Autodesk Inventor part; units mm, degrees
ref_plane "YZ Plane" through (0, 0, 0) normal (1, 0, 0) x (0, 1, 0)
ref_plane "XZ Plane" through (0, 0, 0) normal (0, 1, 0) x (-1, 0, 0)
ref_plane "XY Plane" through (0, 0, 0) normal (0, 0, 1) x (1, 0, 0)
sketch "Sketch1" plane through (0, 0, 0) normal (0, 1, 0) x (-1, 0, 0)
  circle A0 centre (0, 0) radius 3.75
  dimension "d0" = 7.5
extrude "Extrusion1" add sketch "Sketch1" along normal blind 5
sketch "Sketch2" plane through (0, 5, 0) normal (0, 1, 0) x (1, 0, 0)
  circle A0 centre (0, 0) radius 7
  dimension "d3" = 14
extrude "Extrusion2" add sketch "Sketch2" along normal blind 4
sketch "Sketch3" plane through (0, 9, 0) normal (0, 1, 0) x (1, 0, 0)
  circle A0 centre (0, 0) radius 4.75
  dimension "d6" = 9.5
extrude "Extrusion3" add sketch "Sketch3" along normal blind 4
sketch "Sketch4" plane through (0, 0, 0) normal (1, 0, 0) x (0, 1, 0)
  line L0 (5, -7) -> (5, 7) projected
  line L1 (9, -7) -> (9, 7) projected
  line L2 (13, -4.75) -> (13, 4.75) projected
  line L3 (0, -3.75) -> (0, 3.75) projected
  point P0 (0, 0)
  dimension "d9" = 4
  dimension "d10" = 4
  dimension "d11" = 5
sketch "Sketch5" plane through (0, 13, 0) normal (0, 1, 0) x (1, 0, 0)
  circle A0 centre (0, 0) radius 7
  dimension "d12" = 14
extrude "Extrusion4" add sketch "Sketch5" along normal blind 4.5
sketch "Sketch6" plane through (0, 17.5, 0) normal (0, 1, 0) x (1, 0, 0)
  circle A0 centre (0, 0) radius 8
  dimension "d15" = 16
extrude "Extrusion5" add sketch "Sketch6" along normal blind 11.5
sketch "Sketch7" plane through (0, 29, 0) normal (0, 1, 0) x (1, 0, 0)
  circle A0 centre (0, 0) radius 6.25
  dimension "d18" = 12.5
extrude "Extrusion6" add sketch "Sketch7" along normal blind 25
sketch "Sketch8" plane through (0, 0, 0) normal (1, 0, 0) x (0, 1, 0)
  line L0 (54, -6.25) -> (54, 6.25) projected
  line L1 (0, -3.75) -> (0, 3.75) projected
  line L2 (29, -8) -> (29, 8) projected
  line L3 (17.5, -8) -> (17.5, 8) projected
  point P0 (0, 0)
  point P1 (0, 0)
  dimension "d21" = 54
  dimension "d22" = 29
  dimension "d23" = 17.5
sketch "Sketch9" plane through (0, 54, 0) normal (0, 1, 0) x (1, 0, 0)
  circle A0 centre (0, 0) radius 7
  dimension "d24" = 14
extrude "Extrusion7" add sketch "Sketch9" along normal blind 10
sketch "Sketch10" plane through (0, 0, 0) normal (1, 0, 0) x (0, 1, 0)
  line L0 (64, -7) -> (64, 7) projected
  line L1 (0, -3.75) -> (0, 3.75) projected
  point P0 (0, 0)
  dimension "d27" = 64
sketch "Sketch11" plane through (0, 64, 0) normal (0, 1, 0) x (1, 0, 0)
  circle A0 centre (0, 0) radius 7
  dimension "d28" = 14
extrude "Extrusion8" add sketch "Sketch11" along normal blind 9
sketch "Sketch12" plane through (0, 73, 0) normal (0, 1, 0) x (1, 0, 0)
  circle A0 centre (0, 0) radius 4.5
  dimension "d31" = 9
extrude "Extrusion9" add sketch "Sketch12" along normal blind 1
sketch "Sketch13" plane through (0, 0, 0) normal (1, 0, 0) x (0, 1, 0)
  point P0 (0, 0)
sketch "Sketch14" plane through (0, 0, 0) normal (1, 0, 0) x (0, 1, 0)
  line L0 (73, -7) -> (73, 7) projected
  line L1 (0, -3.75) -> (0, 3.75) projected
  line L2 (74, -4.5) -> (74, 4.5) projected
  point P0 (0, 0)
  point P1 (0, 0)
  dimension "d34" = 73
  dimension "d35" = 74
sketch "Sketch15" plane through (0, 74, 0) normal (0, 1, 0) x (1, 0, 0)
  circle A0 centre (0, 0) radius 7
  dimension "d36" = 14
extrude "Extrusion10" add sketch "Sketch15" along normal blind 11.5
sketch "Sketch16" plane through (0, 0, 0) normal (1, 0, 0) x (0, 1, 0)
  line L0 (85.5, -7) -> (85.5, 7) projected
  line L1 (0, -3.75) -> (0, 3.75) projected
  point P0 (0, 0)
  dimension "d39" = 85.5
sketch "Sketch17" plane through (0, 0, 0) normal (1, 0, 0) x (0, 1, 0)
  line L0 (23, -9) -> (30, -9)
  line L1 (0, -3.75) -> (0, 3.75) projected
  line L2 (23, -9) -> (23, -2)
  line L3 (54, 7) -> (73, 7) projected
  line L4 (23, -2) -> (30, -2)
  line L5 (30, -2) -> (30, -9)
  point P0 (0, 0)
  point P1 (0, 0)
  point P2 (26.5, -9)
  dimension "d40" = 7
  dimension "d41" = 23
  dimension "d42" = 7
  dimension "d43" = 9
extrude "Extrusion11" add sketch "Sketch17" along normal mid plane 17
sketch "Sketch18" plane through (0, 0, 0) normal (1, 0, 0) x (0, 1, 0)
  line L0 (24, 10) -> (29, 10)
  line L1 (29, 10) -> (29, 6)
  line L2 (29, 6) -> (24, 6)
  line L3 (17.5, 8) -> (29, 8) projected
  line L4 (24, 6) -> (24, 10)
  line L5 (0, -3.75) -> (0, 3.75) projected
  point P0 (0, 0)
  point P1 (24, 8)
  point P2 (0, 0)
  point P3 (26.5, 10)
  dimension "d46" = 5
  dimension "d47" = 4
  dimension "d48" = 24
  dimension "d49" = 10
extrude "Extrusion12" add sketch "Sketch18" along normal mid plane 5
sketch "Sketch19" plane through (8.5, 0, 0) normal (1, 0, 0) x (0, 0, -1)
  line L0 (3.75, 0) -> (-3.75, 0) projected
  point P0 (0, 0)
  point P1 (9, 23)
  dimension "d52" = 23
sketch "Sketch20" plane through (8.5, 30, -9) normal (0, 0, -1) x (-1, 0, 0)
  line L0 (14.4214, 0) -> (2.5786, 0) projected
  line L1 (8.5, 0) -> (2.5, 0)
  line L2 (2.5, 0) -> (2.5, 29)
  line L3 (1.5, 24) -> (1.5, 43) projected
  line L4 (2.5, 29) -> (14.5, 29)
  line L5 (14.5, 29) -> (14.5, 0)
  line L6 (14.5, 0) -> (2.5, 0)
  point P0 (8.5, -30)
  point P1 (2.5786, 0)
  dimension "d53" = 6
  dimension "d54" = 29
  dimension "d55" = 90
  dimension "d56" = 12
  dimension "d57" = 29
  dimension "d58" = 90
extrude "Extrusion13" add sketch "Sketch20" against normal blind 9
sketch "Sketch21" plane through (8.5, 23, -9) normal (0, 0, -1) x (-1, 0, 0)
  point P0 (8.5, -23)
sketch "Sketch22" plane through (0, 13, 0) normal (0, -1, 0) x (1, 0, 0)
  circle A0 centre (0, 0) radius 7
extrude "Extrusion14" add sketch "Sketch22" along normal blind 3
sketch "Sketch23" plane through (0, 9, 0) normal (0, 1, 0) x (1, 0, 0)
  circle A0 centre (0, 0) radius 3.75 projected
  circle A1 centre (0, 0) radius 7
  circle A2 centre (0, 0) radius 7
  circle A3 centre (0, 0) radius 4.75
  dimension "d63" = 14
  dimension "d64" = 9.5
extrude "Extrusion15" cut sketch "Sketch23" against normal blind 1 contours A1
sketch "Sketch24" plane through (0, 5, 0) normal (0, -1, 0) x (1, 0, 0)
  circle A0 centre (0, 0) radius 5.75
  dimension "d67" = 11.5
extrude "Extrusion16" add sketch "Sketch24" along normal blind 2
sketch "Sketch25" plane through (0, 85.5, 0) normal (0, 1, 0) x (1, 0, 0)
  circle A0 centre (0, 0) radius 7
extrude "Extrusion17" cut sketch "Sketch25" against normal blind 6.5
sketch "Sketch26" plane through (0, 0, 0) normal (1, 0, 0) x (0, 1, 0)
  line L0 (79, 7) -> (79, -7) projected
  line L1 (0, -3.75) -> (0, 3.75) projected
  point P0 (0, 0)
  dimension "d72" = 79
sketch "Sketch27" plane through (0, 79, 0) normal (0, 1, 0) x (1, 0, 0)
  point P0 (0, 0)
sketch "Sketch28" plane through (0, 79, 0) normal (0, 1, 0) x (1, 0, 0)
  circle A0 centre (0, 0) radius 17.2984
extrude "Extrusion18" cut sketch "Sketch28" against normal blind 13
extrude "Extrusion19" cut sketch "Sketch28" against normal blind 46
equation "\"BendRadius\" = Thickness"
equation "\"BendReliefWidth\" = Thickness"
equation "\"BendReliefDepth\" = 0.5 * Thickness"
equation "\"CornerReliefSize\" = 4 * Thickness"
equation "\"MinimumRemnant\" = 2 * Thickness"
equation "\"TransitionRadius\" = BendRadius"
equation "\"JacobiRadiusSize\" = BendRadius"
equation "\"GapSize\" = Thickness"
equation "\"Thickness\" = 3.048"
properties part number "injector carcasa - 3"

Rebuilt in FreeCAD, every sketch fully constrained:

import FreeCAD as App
import Part
import Sketcher

V = App.Vector

doc = App.newDocument("Part")
body = doc.addObject("PartDesign::Body", "Body")

# Sketch on XZ plane
sketch1 = body.newObject("Sketcher::SketchObject", "Sketch")
sketch1.AttachmentSupport = (doc.getObject("XZ_Plane"), [""])
sketch1.MapMode = "FlatFace"
sketch1.addGeometry(Part.Circle(V(0, 0, 0), V(0, 0, 1), 3.8), False)
sketch1.addConstraint([
    Sketcher.Constraint("Coincident", 0, 3, -1, 1),
    Sketcher.Constraint("Diameter", 0, 7.5),
])
pad1 = body.newObject("PartDesign::Pad", "Pad")
pad1.Profile = sketch1
pad1.Length = 5
pad1.Reversed = True

# Sketch on XZ plane
sketch2 = body.newObject("Sketcher::SketchObject", "Sketch001")
sketch2.AttachmentSupport = (doc.getObject("XZ_Plane"), [""])
sketch2.MapMode = "FlatFace"
sketch2.AttachmentOffset = App.Placement(V(0, 0, -5), App.Rotation())
sketch2.addGeometry(Part.Circle(V(0, 0, 0), V(0, 0, 1), 7), False)
sketch2.addConstraint([
    Sketcher.Constraint("Coincident", 0, 3, -1, 1),
    Sketcher.Constraint("Diameter", 0, 14.0),
])
pad2 = body.newObject("PartDesign::Pad", "Pad001")
pad2.Profile = sketch2
pad2.Length = 4
pad2.Reversed = True

# Sketch on XZ plane
sketch3 = body.newObject("Sketcher::SketchObject", "Sketch002")
sketch3.AttachmentSupport = (doc.getObject("XZ_Plane"), [""])
sketch3.MapMode = "FlatFace"
sketch3.AttachmentOffset = App.Placement(V(0, 0, -9), App.Rotation())
sketch3.addGeometry(Part.Circle(V(0, 0, 0), V(0, 0, 1), 4.8), False)
sketch3.addConstraint([
    Sketcher.Constraint("Coincident", 0, 3, -1, 1),
    Sketcher.Constraint("Diameter", 0, 9.5),
])
pad3 = body.newObject("PartDesign::Pad", "Pad002")
pad3.Profile = sketch3
pad3.Length = 4
pad3.Reversed = True

# Sketch on XZ plane
sketch4 = body.newObject("Sketcher::SketchObject", "Sketch003")
sketch4.AttachmentSupport = (doc.getObject("XZ_Plane"), [""])
sketch4.MapMode = "FlatFace"
sketch4.AttachmentOffset = App.Placement(V(0, 0, -13), App.Rotation())
sketch4.addGeometry(Part.Circle(V(0, 0, 0), V(0, 0, 1), 7), False)
sketch4.addConstraint([
    Sketcher.Constraint("Coincident", 0, 3, -1, 1),
    Sketcher.Constraint("Diameter", 0, 14.0),
])
pad4 = body.newObject("PartDesign::Pad", "Pad003")
pad4.Profile = sketch4
pad4.Length = 4.5
pad4.Reversed = True

# Sketch on XZ plane
sketch5 = body.newObject("Sketcher::SketchObject", "Sketch004")
sketch5.AttachmentSupport = (doc.getObject("XZ_Plane"), [""])
sketch5.MapMode = "FlatFace"
sketch5.AttachmentOffset = App.Placement(V(0, 0, -17.5), App.Rotation())
sketch5.addGeometry(Part.Circle(V(0, 0, 0), V(0, 0, 1), 8), False)
sketch5.addConstraint([
    Sketcher.Constraint("Coincident", 0, 3, -1, 1),
    Sketcher.Constraint("Diameter", 0, 16.0),
])
pad5 = body.newObject("PartDesign::Pad", "Pad004")
pad5.Profile = sketch5
pad5.Length = 11.5
pad5.Reversed = True

# Sketch on XZ plane
sketch6 = body.newObject("Sketcher::SketchObject", "Sketch005")
sketch6.AttachmentSupport = (doc.getObject("XZ_Plane"), [""])
sketch6.MapMode = "FlatFace"
sketch6.AttachmentOffset = App.Placement(V(0, 0, -29), App.Rotation())
sketch6.addGeometry(Part.Circle(V(0, 0, 0), V(0, 0, 1), 6), False)
sketch6.addConstraint([
    Sketcher.Constraint("Coincident", 0, 3, -1, 1),
    Sketcher.Constraint("Diameter", 0, 12.5),
])
pad6 = body.newObject("PartDesign::Pad", "Pad005")
pad6.Profile = sketch6
pad6.Length = 25
pad6.Reversed = True

# Sketch on XZ plane
sketch7 = body.newObject("Sketcher::SketchObject", "Sketch006")
sketch7.AttachmentSupport = (doc.getObject("XZ_Plane"), [""])
sketch7.MapMode = "FlatFace"
sketch7.AttachmentOffset = App.Placement(V(0, 0, -54), App.Rotation())
sketch7.addGeometry(Part.Circle(V(0, 0, 0), V(0, 0, 1), 7), False)
sketch7.addConstraint([
    Sketcher.Constraint("Coincident", 0, 3, -1, 1),
    Sketcher.Constraint("Diameter", 0, 14.0),
])
pad7 = body.newObject("PartDesign::Pad", "Pad006")
pad7.Profile = sketch7
pad7.Length = 10
pad7.Reversed = True

# Sketch on XZ plane
sketch8 = body.newObject("Sketcher::SketchObject", "Sketch007")
sketch8.AttachmentSupport = (doc.getObject("XZ_Plane"), [""])
sketch8.MapMode = "FlatFace"
sketch8.AttachmentOffset = App.Placement(V(0, 0, -64), App.Rotation())
sketch8.addGeometry(Part.Circle(V(0, 0, 0), V(0, 0, 1), 7), False)
sketch8.addConstraint([
    Sketcher.Constraint("Coincident", 0, 3, -1, 1),
    Sketcher.Constraint("Diameter", 0, 14.0),
])
pad8 = body.newObject("PartDesign::Pad", "Pad007")
pad8.Profile = sketch8
pad8.Length = 9
pad8.Reversed = True

# Sketch on XZ plane
sketch9 = body.newObject("Sketcher::SketchObject", "Sketch008")
sketch9.AttachmentSupport = (doc.getObject("XZ_Plane"), [""])
sketch9.MapMode = "FlatFace"
sketch9.AttachmentOffset = App.Placement(V(0, 0, -73), App.Rotation())
sketch9.addGeometry(Part.Circle(V(0, 0, 0), V(0, 0, 1), 4.5), False)
sketch9.addConstraint([
    Sketcher.Constraint("Coincident", 0, 3, -1, 1),
    Sketcher.Constraint("Diameter", 0, 9.0),
])
pad9 = body.newObject("PartDesign::Pad", "Pad008")
pad9.Profile = sketch9
pad9.Length = 1
pad9.Reversed = True

# Sketch on XZ plane
sketch10 = body.newObject("Sketcher::SketchObject", "Sketch009")
sketch10.AttachmentSupport = (doc.getObject("XZ_Plane"), [""])
sketch10.MapMode = "FlatFace"
sketch10.AttachmentOffset = App.Placement(V(0, 0, -74), App.Rotation())
sketch10.addGeometry(Part.Circle(V(0, 0, 0), V(0, 0, 1), 7), False)
sketch10.addConstraint([
    Sketcher.Constraint("Coincident", 0, 3, -1, 1),
    Sketcher.Constraint("Diameter", 0, 14.0),
])
pad10 = body.newObject("PartDesign::Pad", "Pad009")
pad10.Profile = sketch10
pad10.Length = 11.5
pad10.Reversed = True

# Sketch on YZ plane
sketch11 = body.newObject("Sketcher::SketchObject", "Sketch010")
sketch11.AttachmentSupport = (doc.getObject("YZ_Plane"), [""])
sketch11.MapMode = "FlatFace"
sketch11.addGeometry([
    Part.LineSegment(V(23, -2, 0), V(23, -9, 0)),
    Part.LineSegment(V(23, -9, 0), V(30, -9, 0)),
    Part.LineSegment(V(30, -9, 0), V(30, -2, 0)),
    Part.LineSegment(V(30, -2, 0), V(23, -2, 0)),
], False)
sketch11.addConstraint([
    Sketcher.Constraint("Coincident", 0, 2, 1, 1),
    Sketcher.Constraint("Coincident", 1, 2, 2, 1),
    Sketcher.Constraint("Coincident", 2, 2, 3, 1),
    Sketcher.Constraint("Coincident", 3, 2, 0, 1),
    Sketcher.Constraint("Vertical", 0),
    Sketcher.Constraint("Horizontal", 1),
    Sketcher.Constraint("Vertical", 2),
    Sketcher.Constraint("Horizontal", 3),
    Sketcher.Constraint("Equal", 3, 0),
    Sketcher.Constraint("DistanceX", 1, 1, 1, 2, 7.0),
    Sketcher.Constraint("DistanceX", -1, 1, 0, 2, 23.0),
    Sketcher.Constraint("DistanceY", 0, 2, -1, 1, 9.0),
])
pad11 = body.newObject("PartDesign::Pad", "Pad010")
pad11.Profile = sketch11
pad11.Length = 17
pad11.Midplane = True

# Sketch on YZ plane
sketch12 = body.newObject("Sketcher::SketchObject", "Sketch011")
sketch12.AttachmentSupport = (doc.getObject("YZ_Plane"), [""])
sketch12.MapMode = "FlatFace"
sketch12.addGeometry([
    Part.LineSegment(V(29, 10, 0), V(24, 10, 0)),
    Part.LineSegment(V(24, 10, 0), V(24, 6, 0)),
    Part.LineSegment(V(24, 6, 0), V(29, 6, 0)),
    Part.LineSegment(V(29, 6, 0), V(29, 10, 0)),
], False)
sketch12.addConstraint([
    Sketcher.Constraint("Coincident", 0, 2, 1, 1),
    Sketcher.Constraint("Coincident", 1, 2, 2, 1),
    Sketcher.Constraint("Coincident", 2, 2, 3, 1),
    Sketcher.Constraint("Coincident", 3, 2, 0, 1),
    Sketcher.Constraint("Horizontal", 0),
    Sketcher.Constraint("Vertical", 1),
    Sketcher.Constraint("Horizontal", 2),
    Sketcher.Constraint("Vertical", 3),
    Sketcher.Constraint("DistanceX", 0, 2, 0, 1, 5.0),
    Sketcher.Constraint("DistanceY", 1, 2, 1, 1, 4.0),
    Sketcher.Constraint("DistanceX", -1, 1, 0, 2, 24.0),
    Sketcher.Constraint("DistanceY", -1, 1, 0, 2, 10.0),
])
pad12 = body.newObject("PartDesign::Pad", "Pad011")
pad12.Profile = sketch12
pad12.Length = 5
pad12.Midplane = True

# Sketch on XY plane
sketch13 = body.newObject("Sketcher::SketchObject", "Sketch012")
sketch13.AttachmentSupport = (doc.getObject("XY_Plane"), [""])
sketch13.MapMode = "FlatFace"
sketch13.AttachmentOffset = App.Placement(V(0, 0, -9), App.Rotation())
sketch13.addGeometry([
    Part.LineSegment(V(6, 30, 0), V(-6, 30, 0)),
    Part.LineSegment(V(-6, 30, 0), V(-6, 59, 0)),
    Part.LineSegment(V(-6, 59, 0), V(6, 59, 0)),
    Part.LineSegment(V(6, 59, 0), V(6, 30, 0)),
], False)
sketch13.addConstraint([
    Sketcher.Constraint("Coincident", 0, 2, 1, 1),
    Sketcher.Constraint("Coincident", 1, 2, 2, 1),
    Sketcher.Constraint("Coincident", 2, 2, 3, 1),
    Sketcher.Constraint("Coincident", 3, 2, 0, 1),
    Sketcher.Constraint("Horizontal", 0),
    Sketcher.Constraint("Vertical", 1),
    Sketcher.Constraint("Horizontal", 2),
    Sketcher.Constraint("Vertical", 3),
    Sketcher.Constraint("DistanceX", 0, 2, 0, 1, 12.0),
    Sketcher.Constraint("DistanceY", 1, 1, 1, 2, 29.0),
    Sketcher.Constraint("DistanceX", 0, 2, -1, 1, 6.0),
    Sketcher.Constraint("DistanceY", -1, 1, 0, 2, 30.0),
])
pad13 = body.newObject("PartDesign::Pad", "Pad012")
pad13.Profile = sketch13
pad13.Length = 9

# Sketch on XZ plane
sketch14 = body.newObject("Sketcher::SketchObject", "Sketch013")
sketch14.AttachmentSupport = (doc.getObject("XZ_Plane"), [""])
sketch14.MapMode = "FlatFace"
sketch14.AttachmentOffset = App.Placement(V(0, 0, -13), App.Rotation())
sketch14.addGeometry(Part.Circle(V(0, 0, 0), V(0, 0, 1), 7), False)
sketch14.addConstraint([
    Sketcher.Constraint("Coincident", 0, 3, -1, 1),
    Sketcher.Constraint("Diameter", 0, 14.0),
])
pad14 = body.newObject("PartDesign::Pad", "Pad013")
pad14.Profile = sketch14
pad14.Length = 3

# Sketch on XZ plane
sketch15 = body.newObject("Sketcher::SketchObject", "Sketch014")
sketch15.AttachmentSupport = (doc.getObject("XZ_Plane"), [""])
sketch15.MapMode = "FlatFace"
sketch15.AttachmentOffset = App.Placement(V(0, 0, -9), App.Rotation())
sketch15.addGeometry([
    Part.Circle(V(0, 0, 0), V(0, 0, 1), 7),
    Part.Circle(V(0, 0, 0), V(0, 0, 1), 4.8),
], False)
sketch15.addConstraint([
    Sketcher.Constraint("Coincident", 0, 3, -1, 1),
    Sketcher.Constraint("Coincident", 1, 3, -1, 1),
    Sketcher.Constraint("Diameter", 0, 14.0),
    Sketcher.Constraint("Diameter", 1, 9.5),
])
pocket1 = body.newObject("PartDesign::Pocket", "Pocket")
pocket1.Profile = sketch15
pocket1.Length = 1
pocket1.Reversed = True

# Sketch on XZ plane
sketch16 = body.newObject("Sketcher::SketchObject", "Sketch015")
sketch16.AttachmentSupport = (doc.getObject("XZ_Plane"), [""])
sketch16.MapMode = "FlatFace"
sketch16.AttachmentOffset = App.Placement(V(0, 0, -5), App.Rotation())
sketch16.addGeometry(Part.Circle(V(0, 0, 0), V(0, 0, 1), 6), False)
sketch16.addConstraint([
    Sketcher.Constraint("Coincident", 0, 3, -1, 1),
    Sketcher.Constraint("Diameter", 0, 11.5),
])
pad15 = body.newObject("PartDesign::Pad", "Pad014")
pad15.Profile = sketch16
pad15.Length = 2

# Sketch on XZ plane
sketch17 = body.newObject("Sketcher::SketchObject", "Sketch016")
sketch17.AttachmentSupport = (doc.getObject("XZ_Plane"), [""])
sketch17.MapMode = "FlatFace"
sketch17.AttachmentOffset = App.Placement(V(0, 0, -85.5), App.Rotation())
sketch17.addGeometry(Part.Circle(V(0, 0, 0), V(0, 0, 1), 7), False)
sketch17.addConstraint([
    Sketcher.Constraint("Coincident", 0, 3, -1, 1),
    Sketcher.Constraint("Diameter", 0, 14.0),
])
pocket2 = body.newObject("PartDesign::Pocket", "Pocket001")
pocket2.Profile = sketch17
pocket2.Length = 6.5
pocket2.Reversed = True

# Sketch on XZ plane
sketch18 = body.newObject("Sketcher::SketchObject", "Sketch017")
sketch18.AttachmentSupport = (doc.getObject("XZ_Plane"), [""])
sketch18.MapMode = "FlatFace"
sketch18.AttachmentOffset = App.Placement(V(0, 0, -79), App.Rotation())
sketch18.addGeometry(Part.Circle(V(0, 0, 0), V(0, 0, 1), 17), False)
sketch18.addConstraint([
    Sketcher.Constraint("Coincident", 0, 3, -1, 1),
    Sketcher.Constraint("Diameter", 0, 34.5968),
])
pocket3 = body.newObject("PartDesign::Pocket", "Pocket002")
pocket3.Profile = sketch18
pocket3.Length = 13
pocket3.Reversed = True

# Sketch on XZ plane
sketch19 = body.newObject("Sketcher::SketchObject", "Sketch018")
sketch19.AttachmentSupport = (doc.getObject("XZ_Plane"), [""])
sketch19.MapMode = "FlatFace"
sketch19.AttachmentOffset = App.Placement(V(0, 0, -79), App.Rotation())
sketch19.addGeometry(Part.Circle(V(0, 0, 0), V(0, 0, 1), 17), False)
sketch19.addConstraint([
    Sketcher.Constraint("Coincident", 0, 3, -1, 1),
    Sketcher.Constraint("Diameter", 0, 34.5968),
])
pocket4 = body.newObject("PartDesign::Pocket", "Pocket003")
pocket4.Profile = sketch19
pocket4.Length = 46
pocket4.Reversed = True

doc.recompute()
